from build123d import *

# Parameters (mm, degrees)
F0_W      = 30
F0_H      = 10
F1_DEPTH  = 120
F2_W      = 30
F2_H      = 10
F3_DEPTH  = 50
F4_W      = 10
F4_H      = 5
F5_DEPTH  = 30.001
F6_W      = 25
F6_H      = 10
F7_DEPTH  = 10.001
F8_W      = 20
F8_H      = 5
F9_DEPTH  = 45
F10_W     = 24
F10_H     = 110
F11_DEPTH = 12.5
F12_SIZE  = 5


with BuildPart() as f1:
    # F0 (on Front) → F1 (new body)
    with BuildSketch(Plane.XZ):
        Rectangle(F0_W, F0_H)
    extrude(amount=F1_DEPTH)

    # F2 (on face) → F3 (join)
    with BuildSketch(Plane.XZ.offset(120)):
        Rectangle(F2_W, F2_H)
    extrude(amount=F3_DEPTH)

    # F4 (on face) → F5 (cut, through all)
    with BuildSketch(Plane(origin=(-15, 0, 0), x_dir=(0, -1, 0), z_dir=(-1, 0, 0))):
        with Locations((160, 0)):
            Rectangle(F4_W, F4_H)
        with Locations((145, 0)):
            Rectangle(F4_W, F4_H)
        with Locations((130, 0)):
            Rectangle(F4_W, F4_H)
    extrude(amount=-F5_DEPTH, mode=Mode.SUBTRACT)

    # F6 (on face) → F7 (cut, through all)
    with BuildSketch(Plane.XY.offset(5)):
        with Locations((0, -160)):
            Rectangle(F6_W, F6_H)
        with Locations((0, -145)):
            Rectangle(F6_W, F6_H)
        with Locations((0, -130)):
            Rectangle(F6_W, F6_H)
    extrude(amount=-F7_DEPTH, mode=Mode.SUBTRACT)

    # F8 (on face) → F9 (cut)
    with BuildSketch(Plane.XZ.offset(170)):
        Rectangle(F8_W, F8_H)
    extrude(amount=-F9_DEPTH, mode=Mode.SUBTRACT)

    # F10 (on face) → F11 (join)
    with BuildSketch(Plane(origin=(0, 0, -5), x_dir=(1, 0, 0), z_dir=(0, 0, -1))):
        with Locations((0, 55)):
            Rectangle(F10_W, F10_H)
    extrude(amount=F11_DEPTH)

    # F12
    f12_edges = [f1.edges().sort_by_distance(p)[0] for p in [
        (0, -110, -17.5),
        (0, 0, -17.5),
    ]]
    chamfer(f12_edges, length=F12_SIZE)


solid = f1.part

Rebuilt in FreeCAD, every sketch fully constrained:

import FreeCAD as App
import Part
import Sketcher

V = App.Vector
Q = App.Units.Quantity


def edges_at(feature, points):
    """Names of the edges that pass closest to the given points."""
    edges = feature.Shape.Edges
    near = lambda p: min(range(len(edges)), key=lambda i: edges[i].distToShape(Part.Vertex(*p))[0])
    return sorted({f"Edge{near(p) + 1}" for p in points})

doc = App.newDocument("Part")
body = doc.addObject("PartDesign::Body", "Body")

sketch1 = doc.addObject("Sketcher::SketchObject", "Sketch")
body.addObject(sketch1)
sketch1.AttachmentSupport = (doc.XZ_Plane, [""])
sketch1.MapMode = "FlatFace"
sketch1.addGeometry([
    Part.LineSegment(V(-15, 5, 0), V(-15, -5, 0)),
    Part.LineSegment(V(-15, -5, 0), V(15, -5, 0)),
    Part.LineSegment(V(15, -5, 0), V(15, 5, 0)),
    Part.LineSegment(V(15, 5, 0), V(-15, 5, 0)),
], False)
sketch1.addConstraint([
    Sketcher.Constraint("Coincident", 0, 2, 1, 1),
    Sketcher.Constraint("Coincident", 1, 2, 2, 1),
    Sketcher.Constraint("Coincident", 2, 2, 3, 1),
    Sketcher.Constraint("Coincident", 3, 2, 0, 1),
    Sketcher.Constraint("Vertical", 0),
    Sketcher.Constraint("Horizontal", 1),
    Sketcher.Constraint("Vertical", 2),
    Sketcher.Constraint("Horizontal", 3),
    Sketcher.Constraint("Symmetric", 0, 2, 2, 2, -1, 1),
    Sketcher.Constraint("DistanceX", 1, 1, 1, 2, Q("30 mm")),
    Sketcher.Constraint("DistanceY", 0, 2, 0, 1, Q("10 mm")),
])
pad1 = doc.addObject("PartDesign::Pad", "Pad")
body.addObject(pad1)
pad1.Profile = sketch1
pad1.Length = 120

sketch2 = doc.addObject("Sketcher::SketchObject", "Sketch001")
body.addObject(sketch2)
sketch2.AttachmentSupport = (doc.XZ_Plane, [""])
sketch2.MapMode = "FlatFace"
sketch2.AttachmentOffset = App.Placement(V(0, 0, 120), App.Rotation())
sketch2.addGeometry([
    Part.LineSegment(V(-15, 5, 0), V(-15, -5, 0)),
    Part.LineSegment(V(-15, -5, 0), V(15, -5, 0)),
    Part.LineSegment(V(15, -5, 0), V(15, 5, 0)),
    Part.LineSegment(V(15, 5, 0), V(-15, 5, 0)),
], False)
sketch2.addConstraint([
    Sketcher.Constraint("Coincident", 0, 2, 1, 1),
    Sketcher.Constraint("Coincident", 1, 2, 2, 1),
    Sketcher.Constraint("Coincident", 2, 2, 3, 1),
    Sketcher.Constraint("Coincident", 3, 2, 0, 1),
    Sketcher.Constraint("Vertical", 0),
    Sketcher.Constraint("Horizontal", 1),
    Sketcher.Constraint("Vertical", 2),
    Sketcher.Constraint("Horizontal", 3),
    Sketcher.Constraint("Symmetric", 0, 2, 2, 2, -1, 1),
    Sketcher.Constraint("DistanceX", 1, 1, 1, 2, Q("30 mm")),
    Sketcher.Constraint("DistanceY", 0, 2, 0, 1, Q("10 mm")),
])
pad2 = doc.addObject("PartDesign::Pad", "Pad001")
body.addObject(pad2)
pad2.Profile = sketch2
pad2.Length = 50

sketch3 = doc.addObject("Sketcher::SketchObject", "Sketch002")
body.addObject(sketch3)
sketch3.AttachmentSupport = (doc.YZ_Plane, [""])
sketch3.MapMode = "FlatFace"
sketch3.AttachmentOffset = App.Placement(V(0, 0, -15), App.Rotation())
sketch3.addGeometry([
    Part.LineSegment(V(-155, 2, 0), V(-155, -2, 0)),
    Part.LineSegment(V(-155, -2, 0), V(-165, -2, 0)),
    Part.LineSegment(V(-165, -2, 0), V(-165, 2, 0)),
    Part.LineSegment(V(-165, 2, 0), V(-155, 2, 0)),
    Part.LineSegment(V(-140, 2, 0), V(-140, -2, 0)),
    Part.LineSegment(V(-140, -2, 0), V(-150, -2, 0)),
    Part.LineSegment(V(-150, -2, 0), V(-150, 2, 0)),
    Part.LineSegment(V(-150, 2, 0), V(-140, 2, 0)),
    Part.LineSegment(V(-125, 2, 0), V(-125, -2, 0)),
    Part.LineSegment(V(-125, -2, 0), V(-135, -2, 0)),
    Part.LineSegment(V(-135, -2, 0), V(-135, 2, 0)),
    Part.LineSegment(V(-135, 2, 0), V(-125, 2, 0)),
], False)
sketch3.addConstraint([
    Sketcher.Constraint("Coincident", 0, 2, 1, 1),
    Sketcher.Constraint("Coincident", 1, 2, 2, 1),
    Sketcher.Constraint("Coincident", 2, 2, 3, 1),
    Sketcher.Constraint("Coincident", 3, 2, 0, 1),
    Sketcher.Constraint("Coincident", 4, 2, 5, 1),
    Sketcher.Constraint("Coincident", 5, 2, 6, 1),
    Sketcher.Constraint("Coincident", 6, 2, 7, 1),
    Sketcher.Constraint("Coincident", 7, 2, 4, 1),
    Sketcher.Constraint("Coincident", 8, 2, 9, 1),
    Sketcher.Constraint("Coincident", 9, 2, 10, 1),
    Sketcher.Constraint("Coincident", 10, 2, 11, 1),
    Sketcher.Constraint("Coincident", 11, 2, 8, 1),
    Sketcher.Constraint("Vertical", 0),
    Sketcher.Constraint("Horizontal", 1),
    Sketcher.Constraint("Vertical", 2),
    Sketcher.Constraint("Horizontal", 3),
    Sketcher.Constraint("Vertical", 4),
    Sketcher.Constraint("Horizontal", 5),
    Sketcher.Constraint("Vertical", 6),
    Sketcher.Constraint("Horizontal", 7),
    Sketcher.Constraint("Vertical", 8),
    Sketcher.Constraint("Horizontal", 9),
    Sketcher.Constraint("Vertical", 10),
    Sketcher.Constraint("Horizontal", 11),
    Sketcher.Constraint("Horizontal", 1, 2, 4, 2),
    Sketcher.Constraint("Horizontal", 3, 2, 6, 2),
    Sketcher.Constraint("Horizontal", 5, 2, 8, 2),
    Sketcher.Constraint("Horizontal", 7, 2, 10, 2),
    Sketcher.Constraint("Equal", 3, 5),
    Sketcher.Constraint("Equal", 7, 9),
    Sketcher.Constraint("DistanceX", 1, 2, 1, 1, Q("10 mm")),
    Sketcher.Constraint("DistanceY", 0, 2, 0, 1, Q("5 mm")),
    Sketcher.Constraint("DistanceX", 0, 2, -1, 1, Q("155 mm")),
    Sketcher.Constraint("DistanceX", 4, 2, -1, 1, Q("140 mm")),
    Sketcher.Constraint("DistanceX", 8, 2, -1, 1, Q("125 mm")),
    Sketcher.Constraint("DistanceY", 0, 2, -1, 1, Q("2.5 mm")),
])
pocket1 = doc.addObject("PartDesign::Pocket", "Pocket")
body.addObject(pocket1)
pocket1.Profile = sketch3
pocket1.Type = "ThroughAll"
pocket1.Reversed = True

sketch4 = doc.addObject("Sketcher::SketchObject", "Sketch003")
body.addObject(sketch4)
sketch4.AttachmentSupport = (doc.XY_Plane, [""])
sketch4.MapMode = "FlatFace"
sketch4.AttachmentOffset = App.Placement(V(0, 0, 5), App.Rotation())
sketch4.addGeometry([
    Part.LineSegment(V(-12, -155, 0), V(-12, -165, 0)),
    Part.LineSegment(V(-12, -165, 0), V(12, -165, 0)),
    Part.LineSegment(V(12, -165, 0), V(12, -155, 0)),
    Part.LineSegment(V(12, -155, 0), V(-12, -155, 0)),
    Part.LineSegment(V(-12, -140, 0), V(-12, -150, 0)),
    Part.LineSegment(V(-12, -150, 0), V(12, -150, 0)),
    Part.LineSegment(V(12, -150, 0), V(12, -140, 0)),
    Part.LineSegment(V(12, -140, 0), V(-12, -140, 0)),
    Part.LineSegment(V(-12, -125, 0), V(-12, -135, 0)),
    Part.LineSegment(V(-12, -135, 0), V(12, -135, 0)),
    Part.LineSegment(V(12, -135, 0), V(12, -125, 0)),
    Part.LineSegment(V(12, -125, 0), V(-12, -125, 0)),
], False)
sketch4.addConstraint([
    Sketcher.Constraint("Coincident", 0, 2, 1, 1),
    Sketcher.Constraint("Coincident", 1, 2, 2, 1),
    Sketcher.Constraint("Coincident", 2, 2, 3, 1),
    Sketcher.Constraint("Coincident", 3, 2, 0, 1),
    Sketcher.Constraint("Coincident", 4, 2, 5, 1),
    Sketcher.Constraint("Coincident", 5, 2, 6, 1),
    Sketcher.Constraint("Coincident", 6, 2, 7, 1),
    Sketcher.Constraint("Coincident", 7, 2, 4, 1),
    Sketcher.Constraint("Coincident", 8, 2, 9, 1),
    Sketcher.Constraint("Coincident", 9, 2, 10, 1),
    Sketcher.Constraint("Coincident", 10, 2, 11, 1),
    Sketcher.Constraint("Coincident", 11, 2, 8, 1),
    Sketcher.Constraint("Vertical", 0),
    Sketcher.Constraint("Horizontal", 1),
    Sketcher.Constraint("Vertical", 2),
    Sketcher.Constraint("Horizontal", 3),
    Sketcher.Constraint("Vertical", 4),
    Sketcher.Constraint("Horizontal", 5),
    Sketcher.Constraint("Vertical", 6),
    Sketcher.Constraint("Horizontal", 7),
    Sketcher.Constraint("Vertical", 8),
    Sketcher.Constraint("Horizontal", 9),
    Sketcher.Constraint("Vertical", 10),
    Sketcher.Constraint("Horizontal", 11),
    Sketcher.Constraint("Vertical", 3, 2, 4, 2),
    Sketcher.Constraint("Vertical", 2, 2, 5, 2),
    Sketcher.Constraint("Vertical", 7, 2, 8, 2),
    Sketcher.Constraint("Vertical", 6, 2, 9, 2),
    Sketcher.Constraint("Equal", 2, 4),
    Sketcher.Constraint("Equal", 6, 8),
    Sketcher.Constraint("DistanceX", 1, 1, 1, 2, Q("25 mm")),
    Sketcher.Constraint("DistanceY", 0, 2, 0, 1, Q("10 mm")),
    Sketcher.Constraint("DistanceY", 0, 2, -1, 1, Q("165 mm")),
    Sketcher.Constraint("DistanceY", 4, 2, -1, 1, Q("150 mm")),
    Sketcher.Constraint("DistanceY", 8, 2, -1, 1, Q("135 mm")),
    Sketcher.Constraint("DistanceX", 0, 2, -1, 1, Q("12.5 mm")),
])
pocket2 = doc.addObject("PartDesign::Pocket", "Pocket001")
body.addObject(pocket2)
pocket2.Profile = sketch4
pocket2.Type = "ThroughAll"

sketch5 = doc.addObject("Sketcher::SketchObject", "Sketch004")
body.addObject(sketch5)
sketch5.AttachmentSupport = (doc.XZ_Plane, [""])
sketch5.MapMode = "FlatFace"
sketch5.AttachmentOffset = App.Placement(V(0, 0, 170), App.Rotation())
sketch5.addGeometry([
    Part.LineSegment(V(-10, 2, 0), V(-10, -2, 0)),
    Part.LineSegment(V(-10, -2, 0), V(10, -2, 0)),
    Part.LineSegment(V(10, -2, 0), V(10, 2, 0)),
    Part.LineSegment(V(10, 2, 0), V(-10, 2, 0)),
], False)
sketch5.addConstraint([
    Sketcher.Constraint("Coincident", 0, 2, 1, 1),
    Sketcher.Constraint("Coincident", 1, 2, 2, 1),
    Sketcher.Constraint("Coincident", 2, 2, 3, 1),
    Sketcher.Constraint("Coincident", 3, 2, 0, 1),
    Sketcher.Constraint("Vertical", 0),
    Sketcher.Constraint("Horizontal", 1),
    Sketcher.Constraint("Vertical", 2),
    Sketcher.Constraint("Horizontal", 3),
    Sketcher.Constraint("Symmetric", 0, 2, 2, 2, -1, 1),
    Sketcher.Constraint("DistanceX", 1, 1, 1, 2, Q("20 mm")),
    Sketcher.Constraint("DistanceY", 0, 2, 0, 1, Q("5 mm")),
])
pocket3 = doc.addObject("PartDesign::Pocket", "Pocket002")
body.addObject(pocket3)
pocket3.Profile = sketch5
pocket3.Length = 45

sketch6 = doc.addObject("Sketcher::SketchObject", "Sketch005")
body.addObject(sketch6)
sketch6.AttachmentSupport = (doc.XY_Plane, [""])
sketch6.MapMode = "FlatFace"
sketch6.AttachmentOffset = App.Placement(V(0, 0, -5), App.Rotation())
sketch6.addGeometry([
    Part.LineSegment(V(-12, -110, 0), V(-12, 0, 0)),
    Part.LineSegment(V(-12, 0, 0), V(12, 0, 0)),
    Part.LineSegment(V(12, 0, 0), V(12, -110, 0)),
    Part.LineSegment(V(12, -110, 0), V(-12, -110, 0)),
], False)
sketch6.addConstraint([
    Sketcher.Constraint("Coincident", 0, 2, 1, 1),
    Sketcher.Constraint("Coincident", 1, 2, 2, 1),
    Sketcher.Constraint("Coincident", 2, 2, 3, 1),
    Sketcher.Constraint("Coincident", 3, 2, 0, 1),
    Sketcher.Constraint("Vertical", 0),
    Sketcher.Constraint("Horizontal", 1),
    Sketcher.Constraint("Vertical", 2),
    Sketcher.Constraint("Horizontal", 3),
    Sketcher.Constraint("Symmetric", 0, 2, 1, 2, -1, 1),
    Sketcher.Constraint("DistanceX", 1, 1, 1, 2, Q("24 mm")),
    Sketcher.Constraint("DistanceY", 0, 1, 0, 2, Q("110 mm")),
])
pad3 = doc.addObject("PartDesign::Pad", "Pad002")
body.addObject(pad3)
pad3.Profile = sketch6
pad3.Length = 12.5
pad3.Reversed = True
doc.recompute()

chamfer = doc.addObject("PartDesign::Chamfer", "Chamfer")
body.addObject(chamfer)
chamfer.Base = (pad3, edges_at(pad3, [(0, -110, -17.5), (0, 0, -17.5)]))
chamfer.Size = 5

doc.recompute()
